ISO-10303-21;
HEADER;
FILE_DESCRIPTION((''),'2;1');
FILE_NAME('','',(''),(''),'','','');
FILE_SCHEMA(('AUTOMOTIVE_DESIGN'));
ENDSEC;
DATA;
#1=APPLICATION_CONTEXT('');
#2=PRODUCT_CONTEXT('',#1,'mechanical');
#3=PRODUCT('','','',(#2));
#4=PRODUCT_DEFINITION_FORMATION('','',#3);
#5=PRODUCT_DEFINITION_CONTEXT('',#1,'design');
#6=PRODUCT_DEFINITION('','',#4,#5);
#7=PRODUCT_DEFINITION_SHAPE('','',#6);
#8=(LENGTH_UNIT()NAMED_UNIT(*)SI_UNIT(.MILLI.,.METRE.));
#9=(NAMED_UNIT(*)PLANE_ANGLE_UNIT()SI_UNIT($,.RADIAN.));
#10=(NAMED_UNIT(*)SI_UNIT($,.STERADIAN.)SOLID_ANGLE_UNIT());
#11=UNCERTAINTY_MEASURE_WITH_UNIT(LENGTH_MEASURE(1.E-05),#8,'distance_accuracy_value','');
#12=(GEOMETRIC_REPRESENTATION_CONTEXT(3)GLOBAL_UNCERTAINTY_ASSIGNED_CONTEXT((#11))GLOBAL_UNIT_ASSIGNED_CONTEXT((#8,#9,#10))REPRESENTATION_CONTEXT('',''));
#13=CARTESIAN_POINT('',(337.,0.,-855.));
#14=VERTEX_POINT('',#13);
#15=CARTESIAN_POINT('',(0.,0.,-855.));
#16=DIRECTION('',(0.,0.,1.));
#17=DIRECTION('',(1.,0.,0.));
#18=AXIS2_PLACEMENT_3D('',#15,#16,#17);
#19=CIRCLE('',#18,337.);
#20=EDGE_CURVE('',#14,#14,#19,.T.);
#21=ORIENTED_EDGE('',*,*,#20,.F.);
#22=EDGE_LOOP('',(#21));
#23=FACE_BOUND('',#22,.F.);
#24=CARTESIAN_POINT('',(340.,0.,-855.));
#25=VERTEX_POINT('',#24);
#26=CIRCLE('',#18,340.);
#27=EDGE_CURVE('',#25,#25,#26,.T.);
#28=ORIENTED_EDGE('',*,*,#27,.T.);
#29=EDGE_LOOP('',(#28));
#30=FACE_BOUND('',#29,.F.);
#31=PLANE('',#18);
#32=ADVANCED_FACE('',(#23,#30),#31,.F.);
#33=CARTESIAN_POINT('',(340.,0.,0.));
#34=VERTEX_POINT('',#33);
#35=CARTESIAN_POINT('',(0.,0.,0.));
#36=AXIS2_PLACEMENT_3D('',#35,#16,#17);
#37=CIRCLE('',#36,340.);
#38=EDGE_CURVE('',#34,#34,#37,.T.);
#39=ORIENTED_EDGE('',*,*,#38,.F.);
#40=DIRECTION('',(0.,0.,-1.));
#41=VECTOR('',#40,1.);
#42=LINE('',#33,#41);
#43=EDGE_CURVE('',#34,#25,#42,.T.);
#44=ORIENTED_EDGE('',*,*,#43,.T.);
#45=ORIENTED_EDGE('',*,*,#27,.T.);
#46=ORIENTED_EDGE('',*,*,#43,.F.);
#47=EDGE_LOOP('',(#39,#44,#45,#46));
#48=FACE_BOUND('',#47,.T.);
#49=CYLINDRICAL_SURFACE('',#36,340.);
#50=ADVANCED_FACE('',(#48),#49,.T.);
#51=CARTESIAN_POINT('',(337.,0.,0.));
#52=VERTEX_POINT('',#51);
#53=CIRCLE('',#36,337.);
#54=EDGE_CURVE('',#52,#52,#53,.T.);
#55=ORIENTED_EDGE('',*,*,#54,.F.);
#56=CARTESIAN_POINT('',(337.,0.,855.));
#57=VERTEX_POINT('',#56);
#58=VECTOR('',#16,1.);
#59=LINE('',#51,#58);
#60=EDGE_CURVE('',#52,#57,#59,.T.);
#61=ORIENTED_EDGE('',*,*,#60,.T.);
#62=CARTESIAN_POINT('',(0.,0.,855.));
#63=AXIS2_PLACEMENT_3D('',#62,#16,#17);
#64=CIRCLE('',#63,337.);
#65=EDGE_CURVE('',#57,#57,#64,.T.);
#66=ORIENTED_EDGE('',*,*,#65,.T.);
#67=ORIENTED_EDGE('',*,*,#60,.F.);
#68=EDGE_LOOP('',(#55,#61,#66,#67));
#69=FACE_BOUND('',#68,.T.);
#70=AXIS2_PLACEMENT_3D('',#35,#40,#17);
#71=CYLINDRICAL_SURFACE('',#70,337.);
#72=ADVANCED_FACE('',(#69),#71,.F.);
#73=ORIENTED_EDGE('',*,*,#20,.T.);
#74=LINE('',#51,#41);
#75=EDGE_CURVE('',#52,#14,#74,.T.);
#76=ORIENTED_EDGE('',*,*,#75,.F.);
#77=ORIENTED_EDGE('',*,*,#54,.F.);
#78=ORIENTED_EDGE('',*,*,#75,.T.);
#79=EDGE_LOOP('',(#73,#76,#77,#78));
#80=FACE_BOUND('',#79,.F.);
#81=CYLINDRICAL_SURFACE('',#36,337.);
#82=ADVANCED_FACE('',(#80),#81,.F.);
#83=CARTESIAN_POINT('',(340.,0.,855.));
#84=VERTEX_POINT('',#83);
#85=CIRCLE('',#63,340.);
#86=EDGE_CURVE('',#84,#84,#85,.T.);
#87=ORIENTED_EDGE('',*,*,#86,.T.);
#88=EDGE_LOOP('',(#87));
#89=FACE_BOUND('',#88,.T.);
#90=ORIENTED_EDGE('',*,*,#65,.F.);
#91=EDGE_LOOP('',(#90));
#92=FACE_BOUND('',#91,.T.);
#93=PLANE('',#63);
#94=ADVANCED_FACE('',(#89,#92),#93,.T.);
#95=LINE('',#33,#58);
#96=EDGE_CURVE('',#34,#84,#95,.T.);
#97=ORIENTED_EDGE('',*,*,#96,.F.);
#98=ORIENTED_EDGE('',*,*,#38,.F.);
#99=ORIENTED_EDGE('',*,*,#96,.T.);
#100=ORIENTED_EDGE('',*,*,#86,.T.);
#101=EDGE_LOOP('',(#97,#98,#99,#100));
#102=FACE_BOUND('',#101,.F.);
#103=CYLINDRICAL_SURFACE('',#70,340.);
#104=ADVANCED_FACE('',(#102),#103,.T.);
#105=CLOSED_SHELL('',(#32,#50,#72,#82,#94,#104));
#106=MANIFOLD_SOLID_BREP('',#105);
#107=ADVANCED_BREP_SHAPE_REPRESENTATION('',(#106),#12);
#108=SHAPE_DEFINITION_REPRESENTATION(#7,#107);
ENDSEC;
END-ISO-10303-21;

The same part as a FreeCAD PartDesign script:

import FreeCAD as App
import Part
import Sketcher
from FreeCAD import Vector

doc = App.newDocument("Part")
params = doc.addObject("Spreadsheet::Sheet", "Params")
for row, (alias, value) in enumerate([
    ("sketch1_diameter", "680 mm"),
    ("sketch1_diameter2", "674 mm"),
    ("pad1_length", "1710 mm"),
], start=1):
    params.set(f"A{row}", alias)
    params.set(f"B{row}", "=" + value)
    params.setAlias(f"B{row}", alias)

body = doc.addObject("PartDesign::Body", "Body")

# Sketch on XY plane
sketch1 = doc.addObject("Sketcher::SketchObject", "Sketch")
body.addObject(sketch1)
sketch1.AttachmentSupport = (doc.XY_Plane, [""])
sketch1.MapMode = "FlatFace"
sketch1.addGeometry(Part.Circle(Vector(0, 0, 0), Vector(0, 0, 1), 340), False)
sketch1.addGeometry(Part.Circle(Vector(0, 0, 0), Vector(0, 0, 1), 337), False)
sketch1.addConstraint(Sketcher.Constraint("Coincident", 0, 3, -1, 1))
sketch1.addConstraint(Sketcher.Constraint("Coincident", 1, 3, -1, 1))
sketch1.addConstraint(Sketcher.Constraint("Diameter", 0, 680.0))
sketch1.addConstraint(Sketcher.Constraint("Diameter", 1, 674.0))
sketch1.setExpression("Constraints[2]", "Params.sketch1_diameter")
sketch1.setExpression("Constraints[3]", "Params.sketch1_diameter2")
pad1 = doc.addObject("PartDesign::Pad", "Pad")
body.addObject(pad1)
pad1.Profile = sketch1
pad1.setExpression("Length", "Params.pad1_length")
pad1.Midplane = True

doc.recompute()
